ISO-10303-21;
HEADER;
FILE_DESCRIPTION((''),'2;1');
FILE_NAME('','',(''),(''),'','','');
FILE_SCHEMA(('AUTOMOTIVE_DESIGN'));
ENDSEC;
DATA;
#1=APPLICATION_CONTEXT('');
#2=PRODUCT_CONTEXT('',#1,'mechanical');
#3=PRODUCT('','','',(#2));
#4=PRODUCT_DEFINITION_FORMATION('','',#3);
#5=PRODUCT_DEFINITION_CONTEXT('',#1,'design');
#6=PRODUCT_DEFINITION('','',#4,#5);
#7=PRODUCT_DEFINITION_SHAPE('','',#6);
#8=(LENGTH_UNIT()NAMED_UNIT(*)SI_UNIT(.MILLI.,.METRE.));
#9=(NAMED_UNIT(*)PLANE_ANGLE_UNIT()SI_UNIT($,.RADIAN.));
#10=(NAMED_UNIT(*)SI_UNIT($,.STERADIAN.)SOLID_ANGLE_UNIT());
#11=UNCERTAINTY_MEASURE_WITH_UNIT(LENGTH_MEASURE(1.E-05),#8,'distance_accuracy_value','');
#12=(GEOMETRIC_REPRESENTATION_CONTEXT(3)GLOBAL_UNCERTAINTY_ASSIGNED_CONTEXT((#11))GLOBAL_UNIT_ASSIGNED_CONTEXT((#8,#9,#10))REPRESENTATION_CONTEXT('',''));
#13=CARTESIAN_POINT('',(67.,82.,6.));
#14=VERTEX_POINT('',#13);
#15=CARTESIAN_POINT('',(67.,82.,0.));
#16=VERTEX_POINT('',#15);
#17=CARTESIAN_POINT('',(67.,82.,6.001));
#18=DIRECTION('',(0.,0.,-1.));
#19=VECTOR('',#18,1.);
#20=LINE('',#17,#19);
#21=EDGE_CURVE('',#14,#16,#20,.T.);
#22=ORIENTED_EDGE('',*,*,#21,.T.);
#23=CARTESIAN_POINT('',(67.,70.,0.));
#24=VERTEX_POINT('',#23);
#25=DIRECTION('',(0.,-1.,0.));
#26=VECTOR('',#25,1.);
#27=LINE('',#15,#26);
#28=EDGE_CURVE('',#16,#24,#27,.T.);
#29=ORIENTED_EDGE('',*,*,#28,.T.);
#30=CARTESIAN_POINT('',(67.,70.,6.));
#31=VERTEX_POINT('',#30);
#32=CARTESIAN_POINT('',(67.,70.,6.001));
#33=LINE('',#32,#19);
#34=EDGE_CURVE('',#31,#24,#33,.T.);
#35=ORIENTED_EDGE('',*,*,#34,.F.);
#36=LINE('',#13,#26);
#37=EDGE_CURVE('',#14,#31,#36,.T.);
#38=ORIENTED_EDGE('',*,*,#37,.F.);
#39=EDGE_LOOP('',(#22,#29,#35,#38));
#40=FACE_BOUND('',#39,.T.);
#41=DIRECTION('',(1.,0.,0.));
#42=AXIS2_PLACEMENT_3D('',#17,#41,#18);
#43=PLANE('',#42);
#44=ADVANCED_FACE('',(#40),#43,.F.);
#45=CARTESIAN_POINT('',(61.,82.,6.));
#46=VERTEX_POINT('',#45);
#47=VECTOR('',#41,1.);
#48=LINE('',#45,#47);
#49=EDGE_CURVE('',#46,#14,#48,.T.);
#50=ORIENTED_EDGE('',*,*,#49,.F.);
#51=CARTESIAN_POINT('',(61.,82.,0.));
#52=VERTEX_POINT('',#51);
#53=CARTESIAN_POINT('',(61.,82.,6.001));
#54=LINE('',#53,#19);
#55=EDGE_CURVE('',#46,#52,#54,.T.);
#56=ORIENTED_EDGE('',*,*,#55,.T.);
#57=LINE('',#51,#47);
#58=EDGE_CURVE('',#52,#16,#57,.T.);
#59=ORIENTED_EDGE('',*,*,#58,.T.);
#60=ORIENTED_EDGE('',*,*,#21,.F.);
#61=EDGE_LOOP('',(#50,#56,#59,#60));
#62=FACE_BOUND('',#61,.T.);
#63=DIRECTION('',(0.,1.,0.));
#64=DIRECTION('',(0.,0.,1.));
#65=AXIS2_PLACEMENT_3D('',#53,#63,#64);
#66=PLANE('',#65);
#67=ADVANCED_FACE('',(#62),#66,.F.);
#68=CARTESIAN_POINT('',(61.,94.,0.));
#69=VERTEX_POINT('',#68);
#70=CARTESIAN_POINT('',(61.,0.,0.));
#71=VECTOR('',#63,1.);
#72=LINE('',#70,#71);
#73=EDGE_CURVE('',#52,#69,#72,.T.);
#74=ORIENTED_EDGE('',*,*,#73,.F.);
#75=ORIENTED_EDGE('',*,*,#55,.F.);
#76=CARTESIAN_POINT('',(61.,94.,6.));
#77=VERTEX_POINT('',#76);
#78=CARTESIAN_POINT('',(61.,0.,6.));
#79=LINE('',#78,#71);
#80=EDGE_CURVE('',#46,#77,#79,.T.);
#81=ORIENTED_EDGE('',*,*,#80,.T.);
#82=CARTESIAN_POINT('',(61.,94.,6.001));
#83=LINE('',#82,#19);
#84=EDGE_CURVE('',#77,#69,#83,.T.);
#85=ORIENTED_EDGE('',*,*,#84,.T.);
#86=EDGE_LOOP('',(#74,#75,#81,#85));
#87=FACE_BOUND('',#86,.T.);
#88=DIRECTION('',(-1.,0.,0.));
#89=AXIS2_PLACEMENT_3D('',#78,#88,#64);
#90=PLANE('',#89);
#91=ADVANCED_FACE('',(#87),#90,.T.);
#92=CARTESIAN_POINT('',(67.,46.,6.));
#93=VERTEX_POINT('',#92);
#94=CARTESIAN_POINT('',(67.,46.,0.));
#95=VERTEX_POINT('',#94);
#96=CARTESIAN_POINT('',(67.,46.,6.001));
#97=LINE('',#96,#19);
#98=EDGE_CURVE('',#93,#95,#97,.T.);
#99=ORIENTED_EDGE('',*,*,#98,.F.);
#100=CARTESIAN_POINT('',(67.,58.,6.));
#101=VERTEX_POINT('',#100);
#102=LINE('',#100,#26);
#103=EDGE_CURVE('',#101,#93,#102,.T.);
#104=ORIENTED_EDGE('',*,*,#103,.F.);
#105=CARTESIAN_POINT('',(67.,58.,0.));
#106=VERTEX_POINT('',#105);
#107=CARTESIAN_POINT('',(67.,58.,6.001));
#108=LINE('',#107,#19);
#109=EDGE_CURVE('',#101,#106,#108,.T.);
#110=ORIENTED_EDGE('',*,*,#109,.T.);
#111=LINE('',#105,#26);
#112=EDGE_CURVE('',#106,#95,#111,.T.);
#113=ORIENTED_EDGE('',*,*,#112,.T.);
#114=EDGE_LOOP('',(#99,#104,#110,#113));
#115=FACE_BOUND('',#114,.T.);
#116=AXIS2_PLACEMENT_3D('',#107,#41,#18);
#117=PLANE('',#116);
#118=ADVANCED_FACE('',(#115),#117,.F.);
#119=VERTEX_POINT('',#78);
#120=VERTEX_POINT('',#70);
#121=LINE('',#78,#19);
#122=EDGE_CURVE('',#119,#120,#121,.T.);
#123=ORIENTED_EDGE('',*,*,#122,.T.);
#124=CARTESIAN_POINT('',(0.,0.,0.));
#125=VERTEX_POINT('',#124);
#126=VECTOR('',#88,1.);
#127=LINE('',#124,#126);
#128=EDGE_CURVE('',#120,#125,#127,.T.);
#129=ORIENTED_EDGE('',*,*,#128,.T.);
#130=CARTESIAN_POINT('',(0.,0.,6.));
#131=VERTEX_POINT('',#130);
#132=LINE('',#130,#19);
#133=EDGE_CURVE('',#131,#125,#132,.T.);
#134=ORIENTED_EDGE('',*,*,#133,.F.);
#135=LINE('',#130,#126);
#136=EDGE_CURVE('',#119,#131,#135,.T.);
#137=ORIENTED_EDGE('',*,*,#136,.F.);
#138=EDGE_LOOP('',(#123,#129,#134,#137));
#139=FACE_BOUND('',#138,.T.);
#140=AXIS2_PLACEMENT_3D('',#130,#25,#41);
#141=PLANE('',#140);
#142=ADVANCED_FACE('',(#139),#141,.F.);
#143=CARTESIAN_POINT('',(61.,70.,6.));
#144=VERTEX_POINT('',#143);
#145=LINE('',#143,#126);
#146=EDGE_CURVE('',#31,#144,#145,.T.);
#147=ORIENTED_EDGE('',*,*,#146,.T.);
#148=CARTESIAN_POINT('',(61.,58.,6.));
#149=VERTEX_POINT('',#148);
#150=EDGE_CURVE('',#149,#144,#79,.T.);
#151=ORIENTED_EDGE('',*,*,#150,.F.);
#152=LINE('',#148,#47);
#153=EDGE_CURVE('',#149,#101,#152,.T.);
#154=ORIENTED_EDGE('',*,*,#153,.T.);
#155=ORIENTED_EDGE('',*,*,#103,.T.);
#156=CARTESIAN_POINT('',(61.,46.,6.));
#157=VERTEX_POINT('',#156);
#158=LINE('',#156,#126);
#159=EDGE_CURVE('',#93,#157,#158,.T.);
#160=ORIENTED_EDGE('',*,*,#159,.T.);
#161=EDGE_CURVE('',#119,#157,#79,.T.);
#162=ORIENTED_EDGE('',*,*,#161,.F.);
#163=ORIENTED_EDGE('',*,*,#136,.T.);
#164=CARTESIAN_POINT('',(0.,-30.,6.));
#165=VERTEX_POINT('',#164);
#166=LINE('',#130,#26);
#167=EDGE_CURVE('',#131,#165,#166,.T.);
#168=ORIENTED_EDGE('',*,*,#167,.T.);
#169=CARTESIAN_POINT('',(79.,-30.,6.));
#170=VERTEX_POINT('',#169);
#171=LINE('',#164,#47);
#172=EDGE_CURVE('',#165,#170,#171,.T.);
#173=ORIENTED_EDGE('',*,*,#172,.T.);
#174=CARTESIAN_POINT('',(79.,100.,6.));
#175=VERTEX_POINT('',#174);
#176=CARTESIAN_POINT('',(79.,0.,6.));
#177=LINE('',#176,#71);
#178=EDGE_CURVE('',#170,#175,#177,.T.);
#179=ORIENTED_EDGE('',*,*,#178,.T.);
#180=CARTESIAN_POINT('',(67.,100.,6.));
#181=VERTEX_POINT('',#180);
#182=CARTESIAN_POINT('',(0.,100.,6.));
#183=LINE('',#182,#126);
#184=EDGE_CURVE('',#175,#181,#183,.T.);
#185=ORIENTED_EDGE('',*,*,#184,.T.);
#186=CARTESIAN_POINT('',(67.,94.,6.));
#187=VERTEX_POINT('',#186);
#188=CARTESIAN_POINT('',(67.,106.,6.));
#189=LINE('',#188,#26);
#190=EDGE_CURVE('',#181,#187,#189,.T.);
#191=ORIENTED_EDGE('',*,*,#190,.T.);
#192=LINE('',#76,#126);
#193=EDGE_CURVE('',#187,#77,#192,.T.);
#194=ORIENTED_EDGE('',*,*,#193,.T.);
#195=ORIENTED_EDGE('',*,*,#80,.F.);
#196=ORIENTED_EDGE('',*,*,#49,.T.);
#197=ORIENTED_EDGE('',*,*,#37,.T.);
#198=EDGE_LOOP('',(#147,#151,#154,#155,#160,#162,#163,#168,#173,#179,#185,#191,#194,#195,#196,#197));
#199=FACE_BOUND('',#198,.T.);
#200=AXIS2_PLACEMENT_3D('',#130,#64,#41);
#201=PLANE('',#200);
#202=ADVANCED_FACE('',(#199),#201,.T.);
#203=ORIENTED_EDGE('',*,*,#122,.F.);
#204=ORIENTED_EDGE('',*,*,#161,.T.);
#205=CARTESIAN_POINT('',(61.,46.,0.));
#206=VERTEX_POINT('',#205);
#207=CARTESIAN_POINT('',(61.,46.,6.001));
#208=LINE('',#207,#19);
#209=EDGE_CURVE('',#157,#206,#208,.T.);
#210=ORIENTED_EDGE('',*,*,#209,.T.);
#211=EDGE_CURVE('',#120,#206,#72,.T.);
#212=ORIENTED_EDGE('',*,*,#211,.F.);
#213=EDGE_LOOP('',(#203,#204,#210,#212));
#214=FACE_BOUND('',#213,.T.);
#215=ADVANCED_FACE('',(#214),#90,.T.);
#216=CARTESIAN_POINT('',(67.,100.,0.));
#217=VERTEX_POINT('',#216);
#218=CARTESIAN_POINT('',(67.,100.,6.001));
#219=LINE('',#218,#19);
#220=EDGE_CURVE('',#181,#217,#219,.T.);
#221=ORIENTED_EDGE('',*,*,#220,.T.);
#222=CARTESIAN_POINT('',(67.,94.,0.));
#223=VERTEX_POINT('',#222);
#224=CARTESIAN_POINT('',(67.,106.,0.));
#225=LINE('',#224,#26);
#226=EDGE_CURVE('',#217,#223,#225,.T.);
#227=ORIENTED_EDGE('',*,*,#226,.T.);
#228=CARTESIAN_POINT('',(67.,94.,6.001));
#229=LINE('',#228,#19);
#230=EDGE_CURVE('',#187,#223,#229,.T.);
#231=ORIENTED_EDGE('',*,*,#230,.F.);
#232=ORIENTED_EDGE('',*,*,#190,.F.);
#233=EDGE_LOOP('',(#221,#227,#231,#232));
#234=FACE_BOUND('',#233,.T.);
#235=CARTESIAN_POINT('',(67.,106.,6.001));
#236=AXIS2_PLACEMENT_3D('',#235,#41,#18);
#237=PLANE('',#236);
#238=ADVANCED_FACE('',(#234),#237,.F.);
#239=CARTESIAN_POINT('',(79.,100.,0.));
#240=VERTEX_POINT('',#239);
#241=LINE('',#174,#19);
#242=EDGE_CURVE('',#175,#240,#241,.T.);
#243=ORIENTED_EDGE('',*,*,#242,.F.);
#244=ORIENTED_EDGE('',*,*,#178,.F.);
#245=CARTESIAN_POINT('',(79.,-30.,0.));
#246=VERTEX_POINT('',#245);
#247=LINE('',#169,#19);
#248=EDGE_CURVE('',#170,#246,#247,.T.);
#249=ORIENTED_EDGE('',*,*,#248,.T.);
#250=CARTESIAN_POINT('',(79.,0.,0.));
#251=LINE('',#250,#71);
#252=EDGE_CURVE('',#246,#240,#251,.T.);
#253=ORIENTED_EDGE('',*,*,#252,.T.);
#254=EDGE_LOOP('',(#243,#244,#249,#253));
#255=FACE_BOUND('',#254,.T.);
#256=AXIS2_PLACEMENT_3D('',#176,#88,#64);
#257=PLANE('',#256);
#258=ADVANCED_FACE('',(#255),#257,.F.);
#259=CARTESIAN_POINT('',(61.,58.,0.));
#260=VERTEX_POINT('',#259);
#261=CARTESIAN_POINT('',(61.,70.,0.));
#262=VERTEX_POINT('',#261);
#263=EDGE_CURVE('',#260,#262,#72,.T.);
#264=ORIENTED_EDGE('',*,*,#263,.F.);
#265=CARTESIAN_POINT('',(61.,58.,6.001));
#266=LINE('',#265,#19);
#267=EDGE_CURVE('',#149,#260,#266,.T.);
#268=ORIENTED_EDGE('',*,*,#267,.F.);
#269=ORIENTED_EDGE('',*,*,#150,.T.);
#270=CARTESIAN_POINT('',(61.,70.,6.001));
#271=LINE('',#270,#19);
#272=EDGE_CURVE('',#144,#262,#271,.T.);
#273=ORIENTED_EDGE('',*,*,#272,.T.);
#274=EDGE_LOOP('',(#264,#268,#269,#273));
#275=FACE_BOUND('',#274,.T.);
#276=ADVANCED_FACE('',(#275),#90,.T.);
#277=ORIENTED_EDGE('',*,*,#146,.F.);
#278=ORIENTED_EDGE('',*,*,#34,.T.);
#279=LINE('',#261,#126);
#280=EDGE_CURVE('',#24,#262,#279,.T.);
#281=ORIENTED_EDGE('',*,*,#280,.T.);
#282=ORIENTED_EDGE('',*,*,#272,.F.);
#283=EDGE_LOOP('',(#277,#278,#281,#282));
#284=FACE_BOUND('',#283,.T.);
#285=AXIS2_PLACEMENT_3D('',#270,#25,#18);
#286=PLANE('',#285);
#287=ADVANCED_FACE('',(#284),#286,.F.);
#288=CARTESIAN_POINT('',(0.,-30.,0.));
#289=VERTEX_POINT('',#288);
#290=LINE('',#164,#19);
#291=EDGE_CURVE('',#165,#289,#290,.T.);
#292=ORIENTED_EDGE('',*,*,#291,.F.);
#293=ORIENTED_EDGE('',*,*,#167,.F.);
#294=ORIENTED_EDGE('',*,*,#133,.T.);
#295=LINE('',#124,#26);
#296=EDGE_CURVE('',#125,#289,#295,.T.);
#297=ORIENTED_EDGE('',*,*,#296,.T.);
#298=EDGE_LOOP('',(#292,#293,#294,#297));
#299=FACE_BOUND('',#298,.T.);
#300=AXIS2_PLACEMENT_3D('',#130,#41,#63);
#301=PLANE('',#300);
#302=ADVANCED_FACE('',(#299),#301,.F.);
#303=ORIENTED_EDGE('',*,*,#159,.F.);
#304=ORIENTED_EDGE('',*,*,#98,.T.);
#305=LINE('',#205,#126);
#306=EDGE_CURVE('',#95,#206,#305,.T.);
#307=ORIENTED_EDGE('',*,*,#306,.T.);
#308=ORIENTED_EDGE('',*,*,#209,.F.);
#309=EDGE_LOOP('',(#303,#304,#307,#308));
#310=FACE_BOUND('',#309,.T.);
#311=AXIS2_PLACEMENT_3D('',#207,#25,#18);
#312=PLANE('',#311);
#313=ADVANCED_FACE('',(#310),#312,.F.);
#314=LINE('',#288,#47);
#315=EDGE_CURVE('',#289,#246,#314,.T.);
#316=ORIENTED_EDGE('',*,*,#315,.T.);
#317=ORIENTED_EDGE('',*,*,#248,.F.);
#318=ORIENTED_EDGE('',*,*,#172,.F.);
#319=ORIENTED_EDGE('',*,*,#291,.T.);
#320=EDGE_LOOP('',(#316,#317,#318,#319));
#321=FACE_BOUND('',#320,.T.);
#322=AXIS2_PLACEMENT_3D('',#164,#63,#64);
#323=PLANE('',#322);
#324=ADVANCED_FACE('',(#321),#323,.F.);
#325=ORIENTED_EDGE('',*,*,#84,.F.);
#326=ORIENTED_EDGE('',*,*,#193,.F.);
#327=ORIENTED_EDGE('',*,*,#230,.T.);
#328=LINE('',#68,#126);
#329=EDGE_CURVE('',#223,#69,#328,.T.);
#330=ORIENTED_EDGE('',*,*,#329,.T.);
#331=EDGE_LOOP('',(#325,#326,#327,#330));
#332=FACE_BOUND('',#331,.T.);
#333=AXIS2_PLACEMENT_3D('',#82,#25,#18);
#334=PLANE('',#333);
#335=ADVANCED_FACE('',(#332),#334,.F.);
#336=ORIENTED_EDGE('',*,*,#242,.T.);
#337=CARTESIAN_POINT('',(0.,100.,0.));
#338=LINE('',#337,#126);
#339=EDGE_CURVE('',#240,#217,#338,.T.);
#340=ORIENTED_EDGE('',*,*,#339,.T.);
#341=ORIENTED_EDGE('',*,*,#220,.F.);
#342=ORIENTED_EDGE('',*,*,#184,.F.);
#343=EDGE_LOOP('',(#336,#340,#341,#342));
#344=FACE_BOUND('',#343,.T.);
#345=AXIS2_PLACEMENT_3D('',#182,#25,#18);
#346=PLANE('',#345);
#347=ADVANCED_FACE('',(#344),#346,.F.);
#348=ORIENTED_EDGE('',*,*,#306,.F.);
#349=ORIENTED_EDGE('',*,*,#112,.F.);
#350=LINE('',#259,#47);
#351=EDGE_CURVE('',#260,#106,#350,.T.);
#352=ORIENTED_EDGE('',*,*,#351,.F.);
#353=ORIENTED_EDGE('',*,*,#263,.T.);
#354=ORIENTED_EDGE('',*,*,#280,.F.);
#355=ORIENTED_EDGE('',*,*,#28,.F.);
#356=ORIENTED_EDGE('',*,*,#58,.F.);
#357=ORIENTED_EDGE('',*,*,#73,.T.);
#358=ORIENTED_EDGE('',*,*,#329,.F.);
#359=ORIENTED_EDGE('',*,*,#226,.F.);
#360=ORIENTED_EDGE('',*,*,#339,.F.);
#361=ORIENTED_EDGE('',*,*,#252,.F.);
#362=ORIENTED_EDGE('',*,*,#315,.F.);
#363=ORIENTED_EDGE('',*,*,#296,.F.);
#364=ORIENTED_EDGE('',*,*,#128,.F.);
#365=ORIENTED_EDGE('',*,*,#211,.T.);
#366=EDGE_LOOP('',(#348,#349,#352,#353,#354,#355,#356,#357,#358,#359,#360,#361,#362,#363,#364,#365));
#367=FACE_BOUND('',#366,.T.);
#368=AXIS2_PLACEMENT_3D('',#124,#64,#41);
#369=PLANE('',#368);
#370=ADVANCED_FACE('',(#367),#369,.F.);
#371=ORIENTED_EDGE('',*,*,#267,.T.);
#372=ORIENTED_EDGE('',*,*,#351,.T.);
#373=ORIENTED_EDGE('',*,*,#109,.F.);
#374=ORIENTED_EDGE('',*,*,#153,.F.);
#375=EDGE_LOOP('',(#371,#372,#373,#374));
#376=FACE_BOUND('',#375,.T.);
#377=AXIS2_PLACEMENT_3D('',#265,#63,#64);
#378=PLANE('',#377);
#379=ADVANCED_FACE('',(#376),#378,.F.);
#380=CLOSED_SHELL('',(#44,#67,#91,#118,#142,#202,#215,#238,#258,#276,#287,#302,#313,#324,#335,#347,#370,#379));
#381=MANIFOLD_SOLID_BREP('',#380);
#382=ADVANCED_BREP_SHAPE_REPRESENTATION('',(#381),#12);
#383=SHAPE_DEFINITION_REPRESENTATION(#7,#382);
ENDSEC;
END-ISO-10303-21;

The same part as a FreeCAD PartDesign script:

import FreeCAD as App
import Part
import Sketcher

V = App.Vector


def add_polygon(sketch, points):
    """Adds a closed chain of lines whose ends are joined by coincident constraints."""
    first, n = sketch.GeometryCount, len(points)
    for a, b in zip(points, points[1:] + points[:1]):
        sketch.addGeometry(Part.LineSegment(App.Vector(*a, 0), App.Vector(*b, 0)), False)
    for i in range(n):
        sketch.addConstraint(Sketcher.Constraint("Coincident", first + i, 2, first + (i + 1) % n, 1))

doc = App.newDocument("Part")
body = doc.addObject("PartDesign::Body", "Body")

# Sketch on XY plane
sketch1 = doc.addObject("Sketcher::SketchObject", "Sketch")
body.addObject(sketch1)
sketch1.AttachmentSupport = (doc.XY_Plane, [""])
sketch1.MapMode = "FlatFace"
add_polygon(sketch1, [(61, 100), (61, 0), (79, 0), (79, 100)])  # lines 0-3
sketch1.addConstraint(Sketcher.Constraint("Vertical", 0))
sketch1.addConstraint(Sketcher.Constraint("Horizontal", 1))
sketch1.addConstraint(Sketcher.Constraint("Vertical", 2))
sketch1.addConstraint(Sketcher.Constraint("Horizontal", 3))
sketch1.addConstraint(Sketcher.Constraint("PointOnObject", 0, 2, -1))
sketch1.addConstraint(Sketcher.Constraint("DistanceX", 1, 1, 1, 2, 18.0))
sketch1.addConstraint(Sketcher.Constraint("DistanceY", 0, 2, 0, 1, 100.0))
sketch1.addConstraint(Sketcher.Constraint("DistanceX", -1, 1, 0, 2, 61.0))
pad1 = doc.addObject("PartDesign::Pad", "Pad")
body.addObject(pad1)
pad1.Profile = sketch1
pad1.Length = 6

# Sketch on XY plane
sketch2 = doc.addObject("Sketcher::SketchObject", "Sketch001")
body.addObject(sketch2)
sketch2.AttachmentSupport = (doc.XY_Plane, [""])
sketch2.MapMode = "FlatFace"
add_polygon(sketch2, [(0, 0), (0, -30), (79, -30), (79, 0)])  # lines 0-3
sketch2.addConstraint(Sketcher.Constraint("Vertical", 0))
sketch2.addConstraint(Sketcher.Constraint("Horizontal", 1))
sketch2.addConstraint(Sketcher.Constraint("Vertical", 2))
sketch2.addConstraint(Sketcher.Constraint("Horizontal", 3))
sketch2.addConstraint(Sketcher.Constraint("Coincident", 3, 2, -1, 1))
sketch2.addConstraint(Sketcher.Constraint("DistanceX", 1, 1, 1, 2, 79.0))
sketch2.addConstraint(Sketcher.Constraint("DistanceY", 0, 2, 0, 1, 30.0))
pad2 = doc.addObject("PartDesign::Pad", "Pad001")
body.addObject(pad2)
pad2.Profile = sketch2
pad2.Length = 6

# Sketch on XY plane
sketch3 = doc.addObject("Sketcher::SketchObject", "Sketch002")
body.addObject(sketch3)
sketch3.AttachmentSupport = (doc.XY_Plane, [""])
sketch3.MapMode = "FlatFace"
add_polygon(sketch3, [(67, 106), (67, 94), (61, 94), (61, 106)])  # lines 0-3
sketch3.addConstraint(Sketcher.Constraint("Vertical", 0))
sketch3.addConstraint(Sketcher.Constraint("Horizontal", 1))
sketch3.addConstraint(Sketcher.Constraint("Vertical", 2))
sketch3.addConstraint(Sketcher.Constraint("Horizontal", 3))
sketch3.addConstraint(Sketcher.Constraint("DistanceX", 1, 2, 1, 1, 6.0))
sketch3.addConstraint(Sketcher.Constraint("DistanceY", 0, 2, 0, 1, 12.0))
sketch3.addConstraint(Sketcher.Constraint("DistanceX", -1, 1, 0, 2, 67.0))
sketch3.addConstraint(Sketcher.Constraint("DistanceY", -1, 1, 0, 2, 94.0))
pocket1 = doc.addObject("PartDesign::Pocket", "Pocket")
body.addObject(pocket1)
pocket1.Profile = sketch3
pocket1.Type = "UpToFirst"
pocket1.Reversed = True

# Sketch on XY plane
sketch4 = doc.addObject("Sketcher::SketchObject", "Sketch003")
body.addObject(sketch4)
sketch4.AttachmentSupport = (doc.XY_Plane, [""])
sketch4.MapMode = "FlatFace"
add_polygon(sketch4, [(67, 82), (67, 70), (61, 70), (61, 82)])  # lines 0-3
sketch4.addConstraint(Sketcher.Constraint("Vertical", 0))
sketch4.addConstraint(Sketcher.Constraint("Horizontal", 1))
sketch4.addConstraint(Sketcher.Constraint("Vertical", 2))
sketch4.addConstraint(Sketcher.Constraint("Horizontal", 3))
sketch4.addConstraint(Sketcher.Constraint("DistanceX", 1, 2, 1, 1, 6.0))
sketch4.addConstraint(Sketcher.Constraint("DistanceY", 0, 2, 0, 1, 12.0))
sketch4.addConstraint(Sketcher.Constraint("DistanceX", -1, 1, 0, 2, 67.0))
sketch4.addConstraint(Sketcher.Constraint("DistanceY", -1, 1, 0, 2, 70.0))
pocket2 = doc.addObject("PartDesign::Pocket", "Pocket001")
body.addObject(pocket2)
pocket2.Profile = sketch4
pocket2.Type = "UpToFirst"
pocket2.Reversed = True

# Sketch on XY plane
sketch5 = doc.addObject("Sketcher::SketchObject", "Sketch004")
body.addObject(sketch5)
sketch5.AttachmentSupport = (doc.XY_Plane, [""])
sketch5.MapMode = "FlatFace"
add_polygon(sketch5, [(67, 58), (67, 46), (61, 46), (61, 58)])  # lines 0-3
sketch5.addConstraint(Sketcher.Constraint("Vertical", 0))
sketch5.addConstraint(Sketcher.Constraint("Horizontal", 1))
sketch5.addConstraint(Sketcher.Constraint("Vertical", 2))
sketch5.addConstraint(Sketcher.Constraint("Horizontal", 3))
sketch5.addConstraint(Sketcher.Constraint("DistanceX", 1, 2, 1, 1, 6.0))
sketch5.addConstraint(Sketcher.Constraint("DistanceY", 0, 2, 0, 1, 12.0))
sketch5.addConstraint(Sketcher.Constraint("DistanceX", -1, 1, 0, 2, 67.0))
sketch5.addConstraint(Sketcher.Constraint("DistanceY", -1, 1, 0, 2, 46.0))
pocket3 = doc.addObject("PartDesign::Pocket", "Pocket002")
body.addObject(pocket3)
pocket3.Profile = sketch5
pocket3.Type = "UpToFirst"
pocket3.Reversed = True

doc.recompute()
